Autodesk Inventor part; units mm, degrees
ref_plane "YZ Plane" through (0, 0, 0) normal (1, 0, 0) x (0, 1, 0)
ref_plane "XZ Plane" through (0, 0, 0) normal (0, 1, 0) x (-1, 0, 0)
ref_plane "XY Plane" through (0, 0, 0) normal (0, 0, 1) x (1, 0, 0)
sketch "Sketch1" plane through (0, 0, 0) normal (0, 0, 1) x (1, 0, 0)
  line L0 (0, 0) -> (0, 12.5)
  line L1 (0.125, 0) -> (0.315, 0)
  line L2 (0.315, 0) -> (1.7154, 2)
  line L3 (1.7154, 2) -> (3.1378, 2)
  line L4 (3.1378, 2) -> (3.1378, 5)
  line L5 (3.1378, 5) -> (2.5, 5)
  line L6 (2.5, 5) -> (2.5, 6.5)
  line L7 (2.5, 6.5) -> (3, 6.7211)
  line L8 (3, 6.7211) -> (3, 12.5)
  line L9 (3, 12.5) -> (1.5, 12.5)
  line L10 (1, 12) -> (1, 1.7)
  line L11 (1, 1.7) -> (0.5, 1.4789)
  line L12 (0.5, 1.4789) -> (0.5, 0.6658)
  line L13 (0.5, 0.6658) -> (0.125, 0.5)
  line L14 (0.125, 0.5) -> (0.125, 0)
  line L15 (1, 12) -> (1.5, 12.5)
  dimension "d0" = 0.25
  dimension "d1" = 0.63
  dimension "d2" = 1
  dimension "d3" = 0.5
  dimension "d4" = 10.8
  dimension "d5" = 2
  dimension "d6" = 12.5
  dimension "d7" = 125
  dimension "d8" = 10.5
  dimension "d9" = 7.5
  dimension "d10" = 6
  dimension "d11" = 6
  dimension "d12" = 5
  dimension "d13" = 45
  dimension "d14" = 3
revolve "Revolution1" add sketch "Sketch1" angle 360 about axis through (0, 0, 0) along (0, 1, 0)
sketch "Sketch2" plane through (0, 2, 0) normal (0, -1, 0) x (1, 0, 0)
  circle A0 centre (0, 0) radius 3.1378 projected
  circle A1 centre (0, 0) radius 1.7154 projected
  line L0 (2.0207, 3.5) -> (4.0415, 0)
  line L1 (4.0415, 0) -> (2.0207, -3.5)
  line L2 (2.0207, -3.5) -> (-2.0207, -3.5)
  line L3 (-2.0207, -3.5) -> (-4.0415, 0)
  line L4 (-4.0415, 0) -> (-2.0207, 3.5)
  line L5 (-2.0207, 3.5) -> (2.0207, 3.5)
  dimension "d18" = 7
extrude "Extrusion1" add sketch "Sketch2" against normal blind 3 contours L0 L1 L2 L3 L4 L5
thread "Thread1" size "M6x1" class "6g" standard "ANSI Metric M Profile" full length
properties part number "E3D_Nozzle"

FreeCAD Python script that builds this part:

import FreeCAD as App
import Part
import Sketcher
Q = App.Units.Quantity


def add_polygon(sketch, points):
    """Adds a closed chain of lines whose ends are joined by coincident constraints."""
    first, n = sketch.GeometryCount, len(points)
    for a, b in zip(points, points[1:] + points[:1]):
        sketch.addGeometry(Part.LineSegment(App.Vector(*a, 0), App.Vector(*b, 0)), False)
    for i in range(n):
        sketch.addConstraint(Sketcher.Constraint("Coincident", first + i, 2, first + (i + 1) % n, 1))

doc = App.newDocument("Part")
body = doc.addObject("PartDesign::Body", "Body")

# Sketch on XY plane
sketch1 = doc.addObject("Sketcher::SketchObject", "Sketch")
body.addObject(sketch1)
sketch1.AttachmentSupport = (doc.XY_Plane, [""])
sketch1.MapMode = "FlatFace"
add_polygon(sketch1, [(0.125, 0.5), (0.125, 0), (0.315, 0), (1.7154, 2), (3.1378, 2), (3.1378, 5), (2.5, 5), (2.5, 6.5), (3, 6.7211), (3, 12.5), (1.5, 12.5), (1, 12), (1, 1.7), (0.5, 1.4789), (0.5, 0.6658)])  # lines 0-14
sketch1.addConstraint([
    Sketcher.Constraint("Vertical", 0),
    Sketcher.Constraint("Horizontal", 1),
    Sketcher.Constraint("Horizontal", 3),
    Sketcher.Constraint("Vertical", 4),
    Sketcher.Constraint("Horizontal", 5),
    Sketcher.Constraint("Vertical", 6),
    Sketcher.Constraint("Vertical", 8),
    Sketcher.Constraint("Horizontal", 9),
    Sketcher.Constraint("Vertical", 11),
    Sketcher.Constraint("Vertical", 13),
    Sketcher.Constraint("PointOnObject", 0, 2, -1),
    Sketcher.Constraint("Parallel", 7, 12),
    Sketcher.Constraint("Parallel", 12, 14),
    Sketcher.Constraint("Equal", 9, 6),
    Sketcher.Constraint("Equal", 7, 12),
    Sketcher.Constraint("DistanceY", 4, 1, 4, 2, Q("3 mm")),
    Sketcher.Constraint("DistanceY", 0, 2, 0, 1, Q("0.5 mm")),
    Sketcher.Constraint("DistanceY", -1, 1, 2, 2, Q("2 mm")),
    Sketcher.Constraint("DistanceX", -1, 1, 7, 2, Q("3 mm")),
    Sketcher.Constraint("DistanceX", -1, 1, 10, 2, Q("1 mm")),
    Sketcher.Constraint("DistanceY", 6, 2, 8, 2, Q("6 mm")),
    Sketcher.Constraint("DistanceX", 9, 2, 6, 2, Q("1 mm")),
    Sketcher.Constraint("DistanceY", -1, 1, 8, 2, Q("12.5 mm")),
    Sketcher.Constraint("DistanceY", 10, 2, 9, 2, Q("0.5 mm")),
    Sketcher.Constraint("Angle", 2, Q("55.0003 deg")),
    Sketcher.Constraint("DistanceY", 11, 2, 11, 1, Q("10.3 mm")),
    Sketcher.Constraint("DistanceX", 1, 1, 1, 2, Q("0.19 mm")),
    Sketcher.Constraint("Distance", 14, Q("0.41 mm")),
    Sketcher.Constraint("DistanceY", 8, 1, 8, 2, Q("5.779 mm")),
    Sketcher.Constraint("DistanceX", 3, 1, 3, 2, Q("1.4224 mm")),
])
revolution = doc.addObject("PartDesign::Revolution", "Revolution")
body.addObject(revolution)
revolution.Profile = sketch1
revolution.ReferenceAxis = (sketch1, ["V_Axis"])
revolution.Angle = 360

# Sketch on XZ plane
sketch2 = doc.addObject("Sketcher::SketchObject", "Sketch001")
body.addObject(sketch2)
sketch2.AttachmentSupport = (doc.XZ_Plane, [""])
sketch2.MapMode = "FlatFace"
sketch2.AttachmentOffset = App.Placement(App.Vector(0, 0, -2), App.Rotation())
add_polygon(sketch2, [(4.0415, 0), (2.0207, 3.5), (-2.0207, 3.5), (-4.0415, 0), (-2.0207, -3.5), (2.0207, -3.5)])  # lines 0-5
sketch2.addGeometry(Part.Circle(App.Vector(0, 0, 0), App.Vector(0, 0, 1), 3.1378), False)  # 6
sketch2.addConstraint([
    Sketcher.Constraint("Horizontal", 1),
    Sketcher.Constraint("Horizontal", 4),
    Sketcher.Constraint("Coincident", 6, 3, -1, 1),
    Sketcher.Constraint("Symmetric", 0, 2, 3, 2, -1, 1),
    Sketcher.Constraint("Symmetric", 2, 2, 5, 2, -1, 1),
    Sketcher.Constraint("PointOnObject", 2, 2, -1),
    Sketcher.Constraint("Parallel", 2, 5),
    Sketcher.Constraint("Vertical", 1, 2, 3, 2),
    Sketcher.Constraint("DistanceY", 3, 2, 1, 2, Q("7 mm")),
    Sketcher.Constraint("Angle", 0, Q("120.001 deg")),
    Sketcher.Constraint("Diameter", 6, Q("6.2756 mm")),
    Sketcher.Constraint("DistanceX", 1, 2, 1, 1, Q("4.0414 mm")),
])
pad1 = doc.addObject("PartDesign::Pad", "Pad")
body.addObject(pad1)
pad1.Profile = sketch2
pad1.Length = 3
pad1.Reversed = True

doc.recompute()
